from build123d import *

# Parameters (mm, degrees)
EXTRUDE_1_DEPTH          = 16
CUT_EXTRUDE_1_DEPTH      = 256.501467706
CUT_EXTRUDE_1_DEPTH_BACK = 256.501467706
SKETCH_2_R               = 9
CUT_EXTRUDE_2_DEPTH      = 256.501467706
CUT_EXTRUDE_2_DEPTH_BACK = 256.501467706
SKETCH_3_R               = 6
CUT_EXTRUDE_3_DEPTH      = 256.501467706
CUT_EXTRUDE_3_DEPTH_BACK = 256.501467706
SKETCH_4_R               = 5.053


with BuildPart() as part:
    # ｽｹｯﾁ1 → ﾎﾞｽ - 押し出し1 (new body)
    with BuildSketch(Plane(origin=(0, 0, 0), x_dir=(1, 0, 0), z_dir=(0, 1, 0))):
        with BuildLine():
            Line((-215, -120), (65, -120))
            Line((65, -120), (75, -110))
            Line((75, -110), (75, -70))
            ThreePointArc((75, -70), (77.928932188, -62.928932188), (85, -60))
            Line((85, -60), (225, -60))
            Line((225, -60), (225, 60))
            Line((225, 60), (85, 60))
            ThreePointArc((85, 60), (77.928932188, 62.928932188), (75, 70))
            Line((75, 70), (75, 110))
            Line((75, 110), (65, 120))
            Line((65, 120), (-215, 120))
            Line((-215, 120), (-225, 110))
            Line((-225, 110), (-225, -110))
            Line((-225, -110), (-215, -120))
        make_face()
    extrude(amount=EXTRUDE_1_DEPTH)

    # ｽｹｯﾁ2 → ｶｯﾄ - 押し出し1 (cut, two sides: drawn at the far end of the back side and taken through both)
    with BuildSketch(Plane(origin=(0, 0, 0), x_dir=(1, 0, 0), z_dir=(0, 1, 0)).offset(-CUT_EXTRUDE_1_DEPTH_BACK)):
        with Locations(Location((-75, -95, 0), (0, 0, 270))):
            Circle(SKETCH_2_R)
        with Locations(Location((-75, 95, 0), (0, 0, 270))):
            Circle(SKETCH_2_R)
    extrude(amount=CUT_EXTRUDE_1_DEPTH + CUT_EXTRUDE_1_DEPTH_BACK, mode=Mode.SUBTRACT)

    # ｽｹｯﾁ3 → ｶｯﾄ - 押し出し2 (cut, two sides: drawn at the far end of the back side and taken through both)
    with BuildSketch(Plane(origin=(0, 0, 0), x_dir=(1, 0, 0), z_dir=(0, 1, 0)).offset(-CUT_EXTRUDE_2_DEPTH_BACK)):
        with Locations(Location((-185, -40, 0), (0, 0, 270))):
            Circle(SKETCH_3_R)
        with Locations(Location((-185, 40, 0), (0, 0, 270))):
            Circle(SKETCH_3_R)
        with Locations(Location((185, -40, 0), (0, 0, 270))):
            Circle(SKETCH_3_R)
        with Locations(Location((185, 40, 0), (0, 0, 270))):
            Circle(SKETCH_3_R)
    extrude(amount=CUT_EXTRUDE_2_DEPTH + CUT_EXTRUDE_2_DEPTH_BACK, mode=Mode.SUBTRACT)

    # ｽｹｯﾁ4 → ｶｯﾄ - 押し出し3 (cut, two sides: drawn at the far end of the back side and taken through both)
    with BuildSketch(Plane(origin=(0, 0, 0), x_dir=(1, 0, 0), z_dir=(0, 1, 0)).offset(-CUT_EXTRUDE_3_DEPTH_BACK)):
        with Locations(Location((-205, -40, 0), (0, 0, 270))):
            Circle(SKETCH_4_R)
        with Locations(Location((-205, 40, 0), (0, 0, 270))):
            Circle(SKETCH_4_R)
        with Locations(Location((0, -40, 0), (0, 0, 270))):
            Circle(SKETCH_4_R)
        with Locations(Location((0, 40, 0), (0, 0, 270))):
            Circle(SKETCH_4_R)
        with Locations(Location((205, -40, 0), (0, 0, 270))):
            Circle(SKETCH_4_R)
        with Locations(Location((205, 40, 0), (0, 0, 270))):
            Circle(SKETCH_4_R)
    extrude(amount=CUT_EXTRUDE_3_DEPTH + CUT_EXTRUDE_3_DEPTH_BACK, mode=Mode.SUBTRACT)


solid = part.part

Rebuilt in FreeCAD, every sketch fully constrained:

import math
import FreeCAD as App
import Part
import Sketcher

V = App.Vector

doc = App.newDocument("Part")
body = doc.addObject("PartDesign::Body", "Body")

sketch1 = body.newObject("Sketcher::SketchObject", "Sketch")
sketch1.AttachmentSupport = (doc.getObject("XZ_Plane"), [""])
sketch1.MapMode = "FlatFace"
sketch1.addGeometry(Part.LineSegment(V(-215, 120, 0), V(65, 120, 0)), False)
sketch1.addGeometry(Part.LineSegment(V(65, 120, 0), V(75, 110, 0)), False)
sketch1.addGeometry(Part.LineSegment(V(75, 110, 0), V(75, 70, 0)), False)
sketch1.addGeometry(Part.ArcOfCircle(Part.Circle(V(85, 70, 0), V(0, 0, 1), 10), math.radians(180), math.radians(270)), False)
sketch1.addGeometry(Part.LineSegment(V(85, 60, 0), V(225, 60, 0)), False)
sketch1.addGeometry(Part.LineSegment(V(225, 60, 0), V(225, -60, 0)), False)
sketch1.addGeometry(Part.LineSegment(V(225, -60, 0), V(85, -60, 0)), False)
sketch1.addGeometry(Part.ArcOfCircle(Part.Circle(V(85, -70, 0), V(0, 0, 1), 10), math.radians(90), math.radians(180)), False)
sketch1.addGeometry(Part.LineSegment(V(75, -70, 0), V(75, -110, 0)), False)
sketch1.addGeometry(Part.LineSegment(V(75, -110, 0), V(65, -120, 0)), False)
sketch1.addGeometry(Part.LineSegment(V(65, -120, 0), V(-215, -120, 0)), False)
sketch1.addGeometry(Part.LineSegment(V(-215, -120, 0), V(-225, -110, 0)), False)
sketch1.addGeometry(Part.LineSegment(V(-225, -110, 0), V(-225, 110, 0)), False)
sketch1.addGeometry(Part.LineSegment(V(-225, 110, 0), V(-215, 120, 0)), False)
sketch1.addConstraint(Sketcher.Constraint("Coincident", 0, 2, 1, 1))
sketch1.addConstraint(Sketcher.Constraint("Coincident", 1, 2, 2, 1))
sketch1.addConstraint(Sketcher.Constraint("Tangent", 2, 2, 3, 1))
sketch1.addConstraint(Sketcher.Constraint("Tangent", 3, 2, 4, 1))
sketch1.addConstraint(Sketcher.Constraint("Coincident", 4, 2, 5, 1))
sketch1.addConstraint(Sketcher.Constraint("Coincident", 5, 2, 6, 1))
sketch1.addConstraint(Sketcher.Constraint("Tangent", 6, 2, 7, 1))
sketch1.addConstraint(Sketcher.Constraint("Tangent", 7, 2, 8, 1))
sketch1.addConstraint(Sketcher.Constraint("Coincident", 8, 2, 9, 1))
sketch1.addConstraint(Sketcher.Constraint("Coincident", 9, 2, 10, 1))
sketch1.addConstraint(Sketcher.Constraint("Coincident", 10, 2, 11, 1))
sketch1.addConstraint(Sketcher.Constraint("Coincident", 11, 2, 12, 1))
sketch1.addConstraint(Sketcher.Constraint("Coincident", 12, 2, 13, 1))
sketch1.addConstraint(Sketcher.Constraint("Coincident", 13, 2, 0, 1))
sketch1.addConstraint(Sketcher.Constraint("Horizontal", 0))
sketch1.addConstraint(Sketcher.Constraint("Vertical", 2))
sketch1.addConstraint(Sketcher.Constraint("Horizontal", 4))
sketch1.addConstraint(Sketcher.Constraint("Vertical", 5))
sketch1.addConstraint(Sketcher.Constraint("Horizontal", 6))
sketch1.addConstraint(Sketcher.Constraint("Vertical", 8))
sketch1.addConstraint(Sketcher.Constraint("Horizontal", 10))
sketch1.addConstraint(Sketcher.Constraint("Vertical", 12))
sketch1.addConstraint(Sketcher.Constraint("Equal", 3, 7))
sketch1.addConstraint(Sketcher.Constraint("Symmetric", 3, 3, 7, 3, -1))
sketch1.addConstraint(Sketcher.Constraint("Symmetric", 0, 2, 9, 2, -1))
sketch1.addConstraint(Sketcher.Constraint("Perpendicular", 1, 9))
sketch1.addConstraint(Sketcher.Constraint("Perpendicular", 9, 11))
sketch1.addConstraint(Sketcher.Constraint("Perpendicular", 11, 13))
sketch1.addConstraint(Sketcher.Constraint("Horizontal", 8, 2, 11, 2))
sketch1.addConstraint(Sketcher.Constraint("Horizontal", 1, 2, 12, 2))
sketch1.addConstraint(Sketcher.Constraint("Vertical", 10, 2, 13, 2))
sketch1.addConstraint(Sketcher.Constraint("Radius", 3, 10.0))
sketch1.addConstraint(Sketcher.Constraint("DistanceX", 0, 1, 0, 2, 280.0))
sketch1.addConstraint(Sketcher.Constraint("DistanceX", 4, 1, 4, 2, 140.0))
sketch1.addConstraint(Sketcher.Constraint("DistanceY", 2, 2, 2, 1, 40.0))
sketch1.addConstraint(Sketcher.Constraint("DistanceY", 5, 2, 5, 1, 120.0))
sketch1.addConstraint(Sketcher.Constraint("DistanceX", -1, 1, 3, 3, 85.0))
sketch1.addConstraint(Sketcher.Constraint("DistanceX", -1, 1, 0, 2, 65.0))
pad1 = body.newObject("PartDesign::Pad", "Pad")
pad1.Profile = sketch1
pad1.Length = 16
pad1.Reversed = True

sketch2 = body.newObject("Sketcher::SketchObject", "Sketch001")
sketch2.AttachmentSupport = (doc.getObject("XZ_Plane"), [""])
sketch2.MapMode = "FlatFace"
sketch2.addGeometry(Part.Circle(V(-75, 95, 0), V(0, 0, 1), 9), False)
sketch2.addGeometry(Part.Circle(V(-75, -95, 0), V(0, 0, 1), 9), False)
sketch2.addConstraint(Sketcher.Constraint("Equal", 0, 1))
sketch2.addConstraint(Sketcher.Constraint("Symmetric", 0, 3, 1, 3, -1))
sketch2.addConstraint(Sketcher.Constraint("Diameter", 0, 18.0))
sketch2.addConstraint(Sketcher.Constraint("DistanceX", 0, 3, -1, 1, 75.0))
sketch2.addConstraint(Sketcher.Constraint("DistanceY", -1, 1, 0, 3, 95.0))
pocket1 = body.newObject("PartDesign::Pocket", "Pocket")
pocket1.Profile = sketch2
pocket1.Type = "ThroughAll"
pocket1.Midplane = True

sketch3 = body.newObject("Sketcher::SketchObject", "Sketch002")
sketch3.AttachmentSupport = (doc.getObject("XZ_Plane"), [""])
sketch3.MapMode = "FlatFace"
sketch3.addGeometry(Part.Circle(V(-185, 40, 0), V(0, 0, 1), 6), False)
sketch3.addGeometry(Part.Circle(V(-185, -40, 0), V(0, 0, 1), 6), False)
sketch3.addGeometry(Part.Circle(V(185, 40, 0), V(0, 0, 1), 6), False)
sketch3.addGeometry(Part.Circle(V(185, -40, 0), V(0, 0, 1), 6), False)
sketch3.addConstraint(Sketcher.Constraint("Equal", 0, 1))
sketch3.addConstraint(Sketcher.Constraint("Equal", 1, 2))
sketch3.addConstraint(Sketcher.Constraint("Equal", 2, 3))
sketch3.addConstraint(Sketcher.Constraint("Symmetric", 1, 3, 2, 3, -1, 1))
sketch3.addConstraint(Sketcher.Constraint("Symmetric", 0, 3, 3, 3, -1, 1))
sketch3.addConstraint(Sketcher.Constraint("Symmetric", 0, 3, 2, 3, -2))
sketch3.addConstraint(Sketcher.Constraint("Diameter", 0, 12.0))
sketch3.addConstraint(Sketcher.Constraint("DistanceX", 0, 3, -1, 1, 185.0))
sketch3.addConstraint(Sketcher.Constraint("DistanceY", -1, 1, 0, 3, 40.0))
pocket2 = body.newObject("PartDesign::Pocket", "Pocket001")
pocket2.Profile = sketch3
pocket2.Type = "ThroughAll"
pocket2.Midplane = True

sketch4 = body.newObject("Sketcher::SketchObject", "Sketch003")
sketch4.AttachmentSupport = (doc.getObject("XZ_Plane"), [""])
sketch4.MapMode = "FlatFace"
sketch4.addGeometry(Part.Circle(V(-205, 40, 0), V(0, 0, 1), 5.053), False)
sketch4.addGeometry(Part.Circle(V(-205, -40, 0), V(0, 0, 1), 5.053), False)
sketch4.addGeometry(Part.Circle(V(0, 40, 0), V(0, 0, 1), 5.053), False)
sketch4.addGeometry(Part.Circle(V(0, -40, 0), V(0, 0, 1), 5.053), False)
sketch4.addGeometry(Part.Circle(V(205, 40, 0), V(0, 0, 1), 5.053), False)
sketch4.addGeometry(Part.Circle(V(205, -40, 0), V(0, 0, 1), 5.053), False)
sketch4.addConstraint(Sketcher.Constraint("Equal", 0, 1))
sketch4.addConstraint(Sketcher.Constraint("Equal", 1, 2))
sketch4.addConstraint(Sketcher.Constraint("Equal", 2, 3))
sketch4.addConstraint(Sketcher.Constraint("Equal", 3, 4))
sketch4.addConstraint(Sketcher.Constraint("Equal", 4, 5))
sketch4.addConstraint(Sketcher.Constraint("Symmetric", 2, 3, 3, 3, -1, 1))
sketch4.addConstraint(Sketcher.Constraint("Symmetric", 1, 3, 4, 3, -1, 1))
sketch4.addConstraint(Sketcher.Constraint("Symmetric", 0, 3, 5, 3, -1, 1))
sketch4.addConstraint(Sketcher.Constraint("Symmetric", 0, 3, 4, 3, -2))
sketch4.addConstraint(Sketcher.Constraint("PointOnObject", 2, 3, -2))
sketch4.addConstraint(Sketcher.Constraint("Horizontal", 0, 3, 2, 3))
sketch4.addConstraint(Sketcher.Constraint("Diameter", 0, 10.106))
sketch4.addConstraint(Sketcher.Constraint("DistanceX", 0, 3, -1, 1, 205.0))
sketch4.addConstraint(Sketcher.Constraint("DistanceY", -1, 1, 0, 3, 40.0))
pocket3 = body.newObject("PartDesign::Pocket", "Pocket002")
pocket3.Profile = sketch4
pocket3.Type = "ThroughAll"
pocket3.Midplane = True

doc.recompute()
